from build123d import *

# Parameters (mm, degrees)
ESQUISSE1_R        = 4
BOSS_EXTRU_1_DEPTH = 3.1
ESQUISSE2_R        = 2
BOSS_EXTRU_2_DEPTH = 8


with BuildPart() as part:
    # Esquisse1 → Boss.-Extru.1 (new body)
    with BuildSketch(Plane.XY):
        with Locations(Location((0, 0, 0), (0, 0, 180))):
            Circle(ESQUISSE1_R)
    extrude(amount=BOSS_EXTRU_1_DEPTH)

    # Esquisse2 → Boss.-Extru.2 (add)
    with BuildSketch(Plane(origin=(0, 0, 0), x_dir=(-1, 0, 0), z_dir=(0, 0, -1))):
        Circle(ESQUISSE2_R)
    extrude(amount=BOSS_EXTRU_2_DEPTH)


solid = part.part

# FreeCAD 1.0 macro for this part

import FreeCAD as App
import Part
import Sketcher

V = App.Vector
Q = App.Units.Quantity

doc = App.newDocument("Part")
params = doc.addObject("Spreadsheet::Sheet", "Params")
for row, (alias, value) in enumerate([
    ("sketch1_diameter", "8 mm"),
    ("pad1_length", "3.1 mm"),
    ("sketch2_diameter", "4 mm"),
    ("pad2_length", "8 mm"),
], start=1):
    params.set(f"A{row}", alias)
    params.set(f"B{row}", "=" + value)
    params.setAlias(f"B{row}", alias)

body = doc.addObject("PartDesign::Body", "Body")

# Sketch on XY plane
sketch1 = doc.addObject("Sketcher::SketchObject", "Sketch")
body.addObject(sketch1)
sketch1.AttachmentSupport = (doc.XY_Plane, [""])
sketch1.MapMode = "FlatFace"
sketch1.addGeometry(Part.Circle(V(0, 0, 0), V(0, 0, 1), 4), False)
sketch1.addConstraint([
    Sketcher.Constraint("Coincident", 0, 3, -1, 1),
    Sketcher.Constraint("Diameter", 0, Q("8 mm")),
])
sketch1.setExpression("Constraints[1]", "Params.sketch1_diameter")
pad1 = doc.addObject("PartDesign::Pad", "Pad")
body.addObject(pad1)
pad1.Profile = sketch1
pad1.setExpression("Length", "Params.pad1_length")

# Sketch on XY plane
sketch2 = doc.addObject("Sketcher::SketchObject", "Sketch001")
body.addObject(sketch2)
sketch2.AttachmentSupport = (doc.XY_Plane, [""])
sketch2.MapMode = "FlatFace"
sketch2.addGeometry(Part.Circle(V(0, 0, 0), V(0, 0, 1), 2), False)
sketch2.addConstraint([
    Sketcher.Constraint("Coincident", 0, 3, -1, 1),
    Sketcher.Constraint("Diameter", 0, Q("4 mm")),
])
sketch2.setExpression("Constraints[1]", "Params.sketch2_diameter")
pad2 = doc.addObject("PartDesign::Pad", "Pad001")
body.addObject(pad2)
pad2.Profile = sketch2
pad2.setExpression("Length", "Params.pad2_length")
pad2.Reversed = True

doc.recompute()
